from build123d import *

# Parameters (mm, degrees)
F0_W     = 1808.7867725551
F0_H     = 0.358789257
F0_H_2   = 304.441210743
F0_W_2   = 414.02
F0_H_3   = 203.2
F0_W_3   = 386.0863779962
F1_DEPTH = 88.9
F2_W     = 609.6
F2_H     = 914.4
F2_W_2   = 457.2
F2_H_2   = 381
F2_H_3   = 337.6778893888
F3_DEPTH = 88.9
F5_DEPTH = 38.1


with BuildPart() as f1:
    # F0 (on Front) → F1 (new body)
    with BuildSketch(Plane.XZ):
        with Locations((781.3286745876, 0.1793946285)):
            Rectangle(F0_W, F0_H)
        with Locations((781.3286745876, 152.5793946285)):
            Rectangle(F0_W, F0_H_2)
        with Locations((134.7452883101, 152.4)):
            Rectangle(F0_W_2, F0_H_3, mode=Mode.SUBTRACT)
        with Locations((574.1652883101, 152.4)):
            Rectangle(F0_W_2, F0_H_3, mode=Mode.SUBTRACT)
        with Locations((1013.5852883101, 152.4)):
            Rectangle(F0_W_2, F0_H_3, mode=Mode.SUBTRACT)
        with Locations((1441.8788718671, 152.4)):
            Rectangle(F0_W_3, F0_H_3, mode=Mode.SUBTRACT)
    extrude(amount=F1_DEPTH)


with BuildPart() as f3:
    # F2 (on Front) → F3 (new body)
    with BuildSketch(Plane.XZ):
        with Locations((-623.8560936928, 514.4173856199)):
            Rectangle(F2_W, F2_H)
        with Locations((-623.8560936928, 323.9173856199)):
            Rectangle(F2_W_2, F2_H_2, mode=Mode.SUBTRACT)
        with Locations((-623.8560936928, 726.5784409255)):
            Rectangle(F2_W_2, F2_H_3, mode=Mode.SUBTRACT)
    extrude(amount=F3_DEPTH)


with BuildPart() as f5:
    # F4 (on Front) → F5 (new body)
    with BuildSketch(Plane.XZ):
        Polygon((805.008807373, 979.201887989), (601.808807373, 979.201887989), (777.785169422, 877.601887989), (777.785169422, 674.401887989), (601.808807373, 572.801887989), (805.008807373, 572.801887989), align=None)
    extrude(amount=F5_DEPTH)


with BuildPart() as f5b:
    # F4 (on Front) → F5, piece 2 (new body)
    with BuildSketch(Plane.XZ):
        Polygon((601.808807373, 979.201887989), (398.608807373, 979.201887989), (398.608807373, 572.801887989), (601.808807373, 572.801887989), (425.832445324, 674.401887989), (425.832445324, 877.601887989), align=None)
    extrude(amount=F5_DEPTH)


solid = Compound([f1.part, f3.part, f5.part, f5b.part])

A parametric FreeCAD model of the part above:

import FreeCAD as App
import Part
import Sketcher
Q = App.Units.Quantity

doc = App.newDocument("Part")
body = doc.addObject("PartDesign::Body", "Body")

sketch1 = doc.addObject("Sketcher::SketchObject", "Sketch")
body.addObject(sketch1)
sketch1.AttachmentSupport = (doc.XZ_Plane, [""])
sketch1.MapMode = "FlatFace"
sketch1.addGeometry([
    Part.LineSegment(App.Vector(-123, 0, 0), App.Vector(1686, 0, 0)),
    Part.LineSegment(App.Vector(1686, 0, 0), App.Vector(1686, 305, 0)),
    Part.LineSegment(App.Vector(1686, 305, 0), App.Vector(-123, 305, 0)),
    Part.LineSegment(App.Vector(-123, 305, 0), App.Vector(-123, 0, 0)),
    Part.LineSegment(App.Vector(342, 51, 0), App.Vector(-72, 51, 0)),
    Part.LineSegment(App.Vector(-72, 51, 0), App.Vector(-72, 254, 0)),
    Part.LineSegment(App.Vector(-72, 254, 0), App.Vector(342, 254, 0)),
    Part.LineSegment(App.Vector(342, 254, 0), App.Vector(342, 51, 0)),
    Part.LineSegment(App.Vector(781, 51, 0), App.Vector(367, 51, 0)),
    Part.LineSegment(App.Vector(367, 51, 0), App.Vector(367, 254, 0)),
    Part.LineSegment(App.Vector(367, 254, 0), App.Vector(781, 254, 0)),
    Part.LineSegment(App.Vector(781, 254, 0), App.Vector(781, 51, 0)),
    Part.LineSegment(App.Vector(1221, 51, 0), App.Vector(807, 51, 0)),
    Part.LineSegment(App.Vector(807, 51, 0), App.Vector(807, 254, 0)),
    Part.LineSegment(App.Vector(807, 254, 0), App.Vector(1221, 254, 0)),
    Part.LineSegment(App.Vector(1221, 254, 0), App.Vector(1221, 51, 0)),
    Part.LineSegment(App.Vector(1635, 51, 0), App.Vector(1249, 51, 0)),
    Part.LineSegment(App.Vector(1249, 51, 0), App.Vector(1249, 254, 0)),
    Part.LineSegment(App.Vector(1249, 254, 0), App.Vector(1635, 254, 0)),
    Part.LineSegment(App.Vector(1635, 254, 0), App.Vector(1635, 51, 0)),
], False)
sketch1.addConstraint([
    Sketcher.Constraint("Coincident", 0, 2, 1, 1),
    Sketcher.Constraint("Coincident", 1, 2, 2, 1),
    Sketcher.Constraint("Coincident", 2, 2, 3, 1),
    Sketcher.Constraint("Coincident", 3, 2, 0, 1),
    Sketcher.Constraint("Coincident", 4, 2, 5, 1),
    Sketcher.Constraint("Coincident", 5, 2, 6, 1),
    Sketcher.Constraint("Coincident", 6, 2, 7, 1),
    Sketcher.Constraint("Coincident", 7, 2, 4, 1),
    Sketcher.Constraint("Coincident", 8, 2, 9, 1),
    Sketcher.Constraint("Coincident", 9, 2, 10, 1),
    Sketcher.Constraint("Coincident", 10, 2, 11, 1),
    Sketcher.Constraint("Coincident", 11, 2, 8, 1),
    Sketcher.Constraint("Coincident", 12, 2, 13, 1),
    Sketcher.Constraint("Coincident", 13, 2, 14, 1),
    Sketcher.Constraint("Coincident", 14, 2, 15, 1),
    Sketcher.Constraint("Coincident", 15, 2, 12, 1),
    Sketcher.Constraint("Coincident", 16, 2, 17, 1),
    Sketcher.Constraint("Coincident", 17, 2, 18, 1),
    Sketcher.Constraint("Coincident", 18, 2, 19, 1),
    Sketcher.Constraint("Coincident", 19, 2, 16, 1),
    Sketcher.Constraint("Horizontal", 0),
    Sketcher.Constraint("Vertical", 1),
    Sketcher.Constraint("Horizontal", 2),
    Sketcher.Constraint("Vertical", 3),
    Sketcher.Constraint("Horizontal", 4),
    Sketcher.Constraint("Vertical", 5),
    Sketcher.Constraint("Horizontal", 6),
    Sketcher.Constraint("Vertical", 7),
    Sketcher.Constraint("Horizontal", 8),
    Sketcher.Constraint("Vertical", 9),
    Sketcher.Constraint("Horizontal", 10),
    Sketcher.Constraint("Vertical", 11),
    Sketcher.Constraint("Horizontal", 12),
    Sketcher.Constraint("Vertical", 13),
    Sketcher.Constraint("Horizontal", 14),
    Sketcher.Constraint("Vertical", 15),
    Sketcher.Constraint("Horizontal", 16),
    Sketcher.Constraint("Vertical", 17),
    Sketcher.Constraint("Horizontal", 18),
    Sketcher.Constraint("Vertical", 19),
    Sketcher.Constraint("PointOnObject", 0, 2, -1),
    Sketcher.Constraint("Horizontal", 7, 2, 8, 2),
    Sketcher.Constraint("Horizontal", 6, 2, 9, 2),
    Sketcher.Constraint("Horizontal", 11, 2, 12, 2),
    Sketcher.Constraint("Horizontal", 10, 2, 13, 2),
    Sketcher.Constraint("Horizontal", 15, 2, 16, 2),
    Sketcher.Constraint("Horizontal", 14, 2, 17, 2),
    Sketcher.Constraint("Equal", 6, 8),
    Sketcher.Constraint("Equal", 10, 12),
    Sketcher.Constraint("DistanceY", 1, 1, 1, 2, Q("12 in")),
    Sketcher.Constraint("DistanceY", 5, 1, 5, 2, Q("8 in")),
    Sketcher.Constraint("DistanceX", 4, 2, 4, 1, Q("16.3 in")),
    Sketcher.Constraint("DistanceY", -1, 1, 4, 2, Q("2 in")),
    Sketcher.Constraint("DistanceX", 3, 2, 4, 2, Q("2 in")),
    Sketcher.Constraint("DistanceX", 7, 2, 8, 2, Q("1 in")),
    Sketcher.Constraint("DistanceX", 11, 2, 12, 2, Q("1 in")),
    Sketcher.Constraint("DistanceX", 18, 2, 1, 2, Q("2 in")),
    Sketcher.Constraint("DistanceX", 0, 1, 0, 2, 1808.786773),
    Sketcher.Constraint("DistanceX", 16, 2, 16, 1, 386.086378),
    Sketcher.Constraint("DistanceX", -1, 1, 0, 2, 1685.722061),
])
pad1 = doc.addObject("PartDesign::Pad", "Pad")
body.addObject(pad1)
pad1.Profile = sketch1
pad1.Length = Q("3.5 in")
body2 = doc.addObject("PartDesign::Body", "Body001")

sketch2 = doc.addObject("Sketcher::SketchObject", "Sketch001")
body2.addObject(sketch2)
sketch2.AttachmentSupport = (doc.getObject("XZ_Plane001"), [""])
sketch2.MapMode = "FlatFace"
sketch2.addGeometry([
    Part.LineSegment(App.Vector(-929, 972, 0), App.Vector(-929, 57, 0)),
    Part.LineSegment(App.Vector(-929, 57, 0), App.Vector(-319, 57, 0)),
    Part.LineSegment(App.Vector(-319, 57, 0), App.Vector(-319, 972, 0)),
    Part.LineSegment(App.Vector(-319, 972, 0), App.Vector(-929, 972, 0)),
    Part.LineSegment(App.Vector(-395, 133, 0), App.Vector(-852, 133, 0)),
    Part.LineSegment(App.Vector(-852, 133, 0), App.Vector(-852, 514, 0)),
    Part.LineSegment(App.Vector(-852, 514, 0), App.Vector(-395, 514, 0)),
    Part.LineSegment(App.Vector(-395, 514, 0), App.Vector(-395, 133, 0)),
    Part.LineSegment(App.Vector(-395, 558, 0), App.Vector(-852, 558, 0)),
    Part.LineSegment(App.Vector(-852, 558, 0), App.Vector(-852, 895, 0)),
    Part.LineSegment(App.Vector(-852, 895, 0), App.Vector(-395, 895, 0)),
    Part.LineSegment(App.Vector(-395, 895, 0), App.Vector(-395, 558, 0)),
], False)
sketch2.addConstraint([
    Sketcher.Constraint("Coincident", 0, 2, 1, 1),
    Sketcher.Constraint("Coincident", 1, 2, 2, 1),
    Sketcher.Constraint("Coincident", 2, 2, 3, 1),
    Sketcher.Constraint("Coincident", 3, 2, 0, 1),
    Sketcher.Constraint("Coincident", 4, 2, 5, 1),
    Sketcher.Constraint("Coincident", 5, 2, 6, 1),
    Sketcher.Constraint("Coincident", 6, 2, 7, 1),
    Sketcher.Constraint("Coincident", 7, 2, 4, 1),
    Sketcher.Constraint("Coincident", 8, 2, 9, 1),
    Sketcher.Constraint("Coincident", 9, 2, 10, 1),
    Sketcher.Constraint("Coincident", 10, 2, 11, 1),
    Sketcher.Constraint("Coincident", 11, 2, 8, 1),
    Sketcher.Constraint("Vertical", 0),
    Sketcher.Constraint("Horizontal", 1),
    Sketcher.Constraint("Vertical", 2),
    Sketcher.Constraint("Horizontal", 3),
    Sketcher.Constraint("Horizontal", 4),
    Sketcher.Constraint("Vertical", 5),
    Sketcher.Constraint("Horizontal", 6),
    Sketcher.Constraint("Vertical", 7),
    Sketcher.Constraint("Horizontal", 8),
    Sketcher.Constraint("Vertical", 9),
    Sketcher.Constraint("Horizontal", 10),
    Sketcher.Constraint("Vertical", 11),
    Sketcher.Constraint("Vertical", 5, 2, 8, 2),
    Sketcher.Constraint("Vertical", 7, 2, 10, 2),
    Sketcher.Constraint("DistanceX", 1, 1, 1, 2, Q("24 in")),
    Sketcher.Constraint("DistanceX", 4, 2, 4, 1, Q("18 in")),
    Sketcher.Constraint("DistanceY", 0, 2, 0, 1, Q("36 in")),
    Sketcher.Constraint("DistanceY", 5, 1, 5, 2, Q("15 in")),
    Sketcher.Constraint("DistanceX", 0, 2, 4, 2, Q("3 in")),
    Sketcher.Constraint("DistanceY", 0, 2, 4, 2, Q("3 in")),
    Sketcher.Constraint("DistanceY", 9, 2, 3, 2, Q("3 in")),
    Sketcher.Constraint("DistanceY", 9, 1, 9, 2, 337.677889),
    Sketcher.Constraint("DistanceX", 0, 2, -1, 1, 928.656094),
    Sketcher.Constraint("DistanceY", -1, 1, 0, 2, 57.217386),
])
pad2 = doc.addObject("PartDesign::Pad", "Pad001")
body2.addObject(pad2)
pad2.Profile = sketch2
pad2.Length = Q("3.5 in")
body3 = doc.addObject("PartDesign::Body", "Body002")

sketch3 = doc.addObject("Sketcher::SketchObject", "Sketch002")
body3.addObject(sketch3)
sketch3.AttachmentSupport = (doc.getObject("XZ_Plane002"), [""])
sketch3.MapMode = "FlatFace"
sketch3.addGeometry([
    Part.LineSegment(App.Vector(805, 979, 0), App.Vector(602, 979, 0)),
    Part.LineSegment(App.Vector(602, 979, 0), App.Vector(778, 878, 0)),
    Part.LineSegment(App.Vector(778, 878, 0), App.Vector(778, 674, 0)),
    Part.LineSegment(App.Vector(778, 674, 0), App.Vector(602, 573, 0)),
    Part.LineSegment(App.Vector(602, 573, 0), App.Vector(805, 573, 0)),
    Part.LineSegment(App.Vector(805, 573, 0), App.Vector(805, 979, 0)),
], False)
sketch3.addConstraint([
    Sketcher.Constraint("Coincident", 0, 2, 1, 1),
    Sketcher.Constraint("Coincident", 1, 2, 2, 1),
    Sketcher.Constraint("Coincident", 2, 2, 3, 1),
    Sketcher.Constraint("Coincident", 3, 2, 4, 1),
    Sketcher.Constraint("Coincident", 4, 2, 5, 1),
    Sketcher.Constraint("Coincident", 5, 2, 0, 1),
    Sketcher.Constraint("Horizontal", 0),
    Sketcher.Constraint("Vertical", 2),
    Sketcher.Constraint("Horizontal", 4),
    Sketcher.Constraint("Vertical", 5),
    Sketcher.Constraint("Vertical", 0, 2, 3, 2),
    Sketcher.Constraint("Equal", 4, 2),
    Sketcher.Constraint("Equal", 1, 3),
    Sketcher.Constraint("DistanceX", 0, 2, 0, 1, Q("8 in")),
    Sketcher.Constraint("DistanceY", 5, 1, 5, 2, Q("16 in")),
    Sketcher.Constraint("Distance", 1, Q("8 in")),
    Sketcher.Constraint("DistanceX", -1, 1, 1, 2, 777.785169),
    Sketcher.Constraint("DistanceY", -1, 1, 0, 2, 979.201888),
])
pad3 = doc.addObject("PartDesign::Pad", "Pad002")
body3.addObject(pad3)
pad3.Profile = sketch3
pad3.Length = Q("1.5 in")
body4 = doc.addObject("PartDesign::Body", "Body003")

sketch4 = doc.addObject("Sketcher::SketchObject", "Sketch003")
body4.addObject(sketch4)
sketch4.AttachmentSupport = (doc.getObject("XZ_Plane003"), [""])
sketch4.MapMode = "FlatFace"
sketch4.addGeometry([
    Part.LineSegment(App.Vector(602, 979, 0), App.Vector(399, 979, 0)),
    Part.LineSegment(App.Vector(399, 979, 0), App.Vector(399, 573, 0)),
    Part.LineSegment(App.Vector(399, 573, 0), App.Vector(602, 573, 0)),
    Part.LineSegment(App.Vector(602, 573, 0), App.Vector(426, 674, 0)),
    Part.LineSegment(App.Vector(426, 674, 0), App.Vector(426, 878, 0)),
    Part.LineSegment(App.Vector(426, 878, 0), App.Vector(602, 979, 0)),
], False)
sketch4.addConstraint([
    Sketcher.Constraint("Coincident", 0, 2, 1, 1),
    Sketcher.Constraint("Coincident", 1, 2, 2, 1),
    Sketcher.Constraint("Coincident", 2, 2, 3, 1),
    Sketcher.Constraint("Coincident", 3, 2, 4, 1),
    Sketcher.Constraint("Coincident", 4, 2, 5, 1),
    Sketcher.Constraint("Coincident", 5, 2, 0, 1),
    Sketcher.Constraint("Horizontal", 0),
    Sketcher.Constraint("Vertical", 1),
    Sketcher.Constraint("Horizontal", 2),
    Sketcher.Constraint("Vertical", 4),
    Sketcher.Constraint("Vertical", 2, 2, 5, 2),
    Sketcher.Constraint("Equal", 2, 4),
    Sketcher.Constraint("Equal", 3, 5),
    Sketcher.Constraint("DistanceX", 0, 2, 0, 1, Q("8 in")),
    Sketcher.Constraint("DistanceY", 1, 2, 1, 1, Q("16 in")),
    Sketcher.Constraint("Distance", 3, Q("8 in")),
    Sketcher.Constraint("DistanceX", -1, 1, 0, 2, 398.608807),
    Sketcher.Constraint("DistanceY", -1, 1, 0, 2, 979.201888),
])
pad4 = doc.addObject("PartDesign::Pad", "Pad003")
body4.addObject(pad4)
pad4.Profile = sketch4
pad4.Length = Q("1.5 in")

doc.recompute()
